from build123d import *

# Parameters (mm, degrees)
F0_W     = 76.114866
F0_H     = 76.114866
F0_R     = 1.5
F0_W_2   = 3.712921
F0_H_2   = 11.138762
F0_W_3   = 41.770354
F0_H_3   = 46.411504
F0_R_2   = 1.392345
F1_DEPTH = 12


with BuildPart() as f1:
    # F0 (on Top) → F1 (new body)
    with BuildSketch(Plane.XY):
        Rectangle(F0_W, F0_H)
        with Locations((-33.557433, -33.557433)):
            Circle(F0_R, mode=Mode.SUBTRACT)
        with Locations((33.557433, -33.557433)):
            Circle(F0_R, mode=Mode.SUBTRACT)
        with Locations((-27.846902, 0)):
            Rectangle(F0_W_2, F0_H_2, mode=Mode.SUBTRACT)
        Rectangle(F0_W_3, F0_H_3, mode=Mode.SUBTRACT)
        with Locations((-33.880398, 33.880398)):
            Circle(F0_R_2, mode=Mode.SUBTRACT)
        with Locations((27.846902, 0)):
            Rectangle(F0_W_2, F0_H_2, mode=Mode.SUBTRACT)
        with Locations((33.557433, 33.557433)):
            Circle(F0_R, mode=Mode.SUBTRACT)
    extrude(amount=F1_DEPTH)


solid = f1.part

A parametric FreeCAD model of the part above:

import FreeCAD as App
import Part
import Sketcher

V = App.Vector
Q = App.Units.Quantity


def add_polygon(sketch, points):
    """Adds a closed chain of lines whose ends are joined by coincident constraints."""
    first, n = sketch.GeometryCount, len(points)
    for a, b in zip(points, points[1:] + points[:1]):
        sketch.addGeometry(Part.LineSegment(App.Vector(*a, 0), App.Vector(*b, 0)), False)
    for i in range(n):
        sketch.addConstraint(Sketcher.Constraint("Coincident", first + i, 2, first + (i + 1) % n, 1))

doc = App.newDocument("Part")
body = doc.addObject("PartDesign::Body", "Body")

sketch1 = doc.addObject("Sketcher::SketchObject", "Sketch")
body.addObject(sketch1)
sketch1.AttachmentSupport = (doc.XY_Plane, [""])
sketch1.MapMode = "FlatFace"
add_polygon(sketch1, [(-38.1, 38.1), (-38.1, -38.1), (38.1, -38.1), (38.1, 38.1)])
sketch1.addGeometry(Part.Circle(V(-33.6, -33.6, 0), V(0, 0, 1), 1.5), False)
add_polygon(sketch1, [(-26, -5.6), (-29.7, -5.6), (-29.7, 5.6), (-26, 5.6)])
sketch1.addGeometry(Part.Circle(V(33.6, -33.6, 0), V(0, 0, 1), 1.5), False)
add_polygon(sketch1, [(20.9, -23.2), (-20.9, -23.2), (-20.9, 23.2), (20.9, 23.2)])
add_polygon(sketch1, [(29.7, -5.6), (26, -5.6), (26, 5.6), (29.7, 5.6)])
sketch1.addGeometry(Part.Circle(V(-33.9, 33.9, 0), V(0, 0, 1), 1.4), False)
sketch1.addGeometry(Part.Circle(V(33.6, 33.6, 0), V(0, 0, 1), 1.5), False)
sketch1.addConstraint(Sketcher.Constraint("Vertical", 0))
sketch1.addConstraint(Sketcher.Constraint("Horizontal", 1))
sketch1.addConstraint(Sketcher.Constraint("Vertical", 2))
sketch1.addConstraint(Sketcher.Constraint("Horizontal", 3))
sketch1.addConstraint(Sketcher.Constraint("Horizontal", 5))
sketch1.addConstraint(Sketcher.Constraint("Vertical", 6))
sketch1.addConstraint(Sketcher.Constraint("Horizontal", 7))
sketch1.addConstraint(Sketcher.Constraint("Vertical", 8))
sketch1.addConstraint(Sketcher.Constraint("Horizontal", 10))
sketch1.addConstraint(Sketcher.Constraint("Vertical", 11))
sketch1.addConstraint(Sketcher.Constraint("Horizontal", 12))
sketch1.addConstraint(Sketcher.Constraint("Vertical", 13))
sketch1.addConstraint(Sketcher.Constraint("Horizontal", 14))
sketch1.addConstraint(Sketcher.Constraint("Vertical", 15))
sketch1.addConstraint(Sketcher.Constraint("Horizontal", 16))
sketch1.addConstraint(Sketcher.Constraint("Vertical", 17))
sketch1.addConstraint(Sketcher.Constraint("Equal", 4, 9))
sketch1.addConstraint(Sketcher.Constraint("Equal", 9, 19))
sketch1.addConstraint(Sketcher.Constraint("Symmetric", 4, 3, 19, 3, -1, 1))
sketch1.addConstraint(Sketcher.Constraint("Symmetric", 0, 2, 2, 2, -1, 1))
sketch1.addConstraint(Sketcher.Constraint("Symmetric", 10, 2, 12, 2, -1, 1))
sketch1.addConstraint(Sketcher.Constraint("Symmetric", 7, 2, 14, 2, -1, 1))
sketch1.addConstraint(Sketcher.Constraint("Symmetric", 5, 2, 16, 2, -1, 1))
sketch1.addConstraint(Sketcher.Constraint("Symmetric", 4, 3, 9, 3, -2))
sketch1.addConstraint(Sketcher.Constraint("Horizontal", 8, 2, 14, 2))
sketch1.addConstraint(Sketcher.Constraint("Equal", 3, 0))
sketch1.addConstraint(Sketcher.Constraint("Diameter", 4, Q("3 mm")))
sketch1.addConstraint(Sketcher.Constraint("DistanceX", 0, 2, 4, 3, Q("4.5 mm")))
sketch1.addConstraint(Sketcher.Constraint("DistanceY", 0, 2, 4, 3, Q("4.5 mm")))
sketch1.addConstraint(Sketcher.Constraint("Diameter", 18, Q("2.78469 mm")))
sketch1.addConstraint(Sketcher.Constraint("DistanceX", 5, 2, 5, 1, Q("3.712921 mm")))
sketch1.addConstraint(Sketcher.Constraint("DistanceX", 1, 1, 1, 2, Q("76.114866 mm")))
sketch1.addConstraint(Sketcher.Constraint("DistanceX", 10, 2, 10, 1, Q("41.770354 mm")))
sketch1.addConstraint(Sketcher.Constraint("DistanceY", 6, 1, 6, 2, Q("11.138762 mm")))
sketch1.addConstraint(Sketcher.Constraint("DistanceY", 11, 1, 11, 2, Q("46.411504 mm")))
sketch1.addConstraint(Sketcher.Constraint("DistanceX", 7, 2, -1, 1, Q("25.990441 mm")))
sketch1.addConstraint(Sketcher.Constraint("DistanceY", 4, 3, 18, 3, Q("67.437831 mm")))
sketch1.addConstraint(Sketcher.Constraint("DistanceX", 18, 3, 9, 3, Q("67.437831 mm")))
pad1 = doc.addObject("PartDesign::Pad", "Pad")
body.addObject(pad1)
pad1.Profile = sketch1
pad1.Length = 12

doc.recompute()
